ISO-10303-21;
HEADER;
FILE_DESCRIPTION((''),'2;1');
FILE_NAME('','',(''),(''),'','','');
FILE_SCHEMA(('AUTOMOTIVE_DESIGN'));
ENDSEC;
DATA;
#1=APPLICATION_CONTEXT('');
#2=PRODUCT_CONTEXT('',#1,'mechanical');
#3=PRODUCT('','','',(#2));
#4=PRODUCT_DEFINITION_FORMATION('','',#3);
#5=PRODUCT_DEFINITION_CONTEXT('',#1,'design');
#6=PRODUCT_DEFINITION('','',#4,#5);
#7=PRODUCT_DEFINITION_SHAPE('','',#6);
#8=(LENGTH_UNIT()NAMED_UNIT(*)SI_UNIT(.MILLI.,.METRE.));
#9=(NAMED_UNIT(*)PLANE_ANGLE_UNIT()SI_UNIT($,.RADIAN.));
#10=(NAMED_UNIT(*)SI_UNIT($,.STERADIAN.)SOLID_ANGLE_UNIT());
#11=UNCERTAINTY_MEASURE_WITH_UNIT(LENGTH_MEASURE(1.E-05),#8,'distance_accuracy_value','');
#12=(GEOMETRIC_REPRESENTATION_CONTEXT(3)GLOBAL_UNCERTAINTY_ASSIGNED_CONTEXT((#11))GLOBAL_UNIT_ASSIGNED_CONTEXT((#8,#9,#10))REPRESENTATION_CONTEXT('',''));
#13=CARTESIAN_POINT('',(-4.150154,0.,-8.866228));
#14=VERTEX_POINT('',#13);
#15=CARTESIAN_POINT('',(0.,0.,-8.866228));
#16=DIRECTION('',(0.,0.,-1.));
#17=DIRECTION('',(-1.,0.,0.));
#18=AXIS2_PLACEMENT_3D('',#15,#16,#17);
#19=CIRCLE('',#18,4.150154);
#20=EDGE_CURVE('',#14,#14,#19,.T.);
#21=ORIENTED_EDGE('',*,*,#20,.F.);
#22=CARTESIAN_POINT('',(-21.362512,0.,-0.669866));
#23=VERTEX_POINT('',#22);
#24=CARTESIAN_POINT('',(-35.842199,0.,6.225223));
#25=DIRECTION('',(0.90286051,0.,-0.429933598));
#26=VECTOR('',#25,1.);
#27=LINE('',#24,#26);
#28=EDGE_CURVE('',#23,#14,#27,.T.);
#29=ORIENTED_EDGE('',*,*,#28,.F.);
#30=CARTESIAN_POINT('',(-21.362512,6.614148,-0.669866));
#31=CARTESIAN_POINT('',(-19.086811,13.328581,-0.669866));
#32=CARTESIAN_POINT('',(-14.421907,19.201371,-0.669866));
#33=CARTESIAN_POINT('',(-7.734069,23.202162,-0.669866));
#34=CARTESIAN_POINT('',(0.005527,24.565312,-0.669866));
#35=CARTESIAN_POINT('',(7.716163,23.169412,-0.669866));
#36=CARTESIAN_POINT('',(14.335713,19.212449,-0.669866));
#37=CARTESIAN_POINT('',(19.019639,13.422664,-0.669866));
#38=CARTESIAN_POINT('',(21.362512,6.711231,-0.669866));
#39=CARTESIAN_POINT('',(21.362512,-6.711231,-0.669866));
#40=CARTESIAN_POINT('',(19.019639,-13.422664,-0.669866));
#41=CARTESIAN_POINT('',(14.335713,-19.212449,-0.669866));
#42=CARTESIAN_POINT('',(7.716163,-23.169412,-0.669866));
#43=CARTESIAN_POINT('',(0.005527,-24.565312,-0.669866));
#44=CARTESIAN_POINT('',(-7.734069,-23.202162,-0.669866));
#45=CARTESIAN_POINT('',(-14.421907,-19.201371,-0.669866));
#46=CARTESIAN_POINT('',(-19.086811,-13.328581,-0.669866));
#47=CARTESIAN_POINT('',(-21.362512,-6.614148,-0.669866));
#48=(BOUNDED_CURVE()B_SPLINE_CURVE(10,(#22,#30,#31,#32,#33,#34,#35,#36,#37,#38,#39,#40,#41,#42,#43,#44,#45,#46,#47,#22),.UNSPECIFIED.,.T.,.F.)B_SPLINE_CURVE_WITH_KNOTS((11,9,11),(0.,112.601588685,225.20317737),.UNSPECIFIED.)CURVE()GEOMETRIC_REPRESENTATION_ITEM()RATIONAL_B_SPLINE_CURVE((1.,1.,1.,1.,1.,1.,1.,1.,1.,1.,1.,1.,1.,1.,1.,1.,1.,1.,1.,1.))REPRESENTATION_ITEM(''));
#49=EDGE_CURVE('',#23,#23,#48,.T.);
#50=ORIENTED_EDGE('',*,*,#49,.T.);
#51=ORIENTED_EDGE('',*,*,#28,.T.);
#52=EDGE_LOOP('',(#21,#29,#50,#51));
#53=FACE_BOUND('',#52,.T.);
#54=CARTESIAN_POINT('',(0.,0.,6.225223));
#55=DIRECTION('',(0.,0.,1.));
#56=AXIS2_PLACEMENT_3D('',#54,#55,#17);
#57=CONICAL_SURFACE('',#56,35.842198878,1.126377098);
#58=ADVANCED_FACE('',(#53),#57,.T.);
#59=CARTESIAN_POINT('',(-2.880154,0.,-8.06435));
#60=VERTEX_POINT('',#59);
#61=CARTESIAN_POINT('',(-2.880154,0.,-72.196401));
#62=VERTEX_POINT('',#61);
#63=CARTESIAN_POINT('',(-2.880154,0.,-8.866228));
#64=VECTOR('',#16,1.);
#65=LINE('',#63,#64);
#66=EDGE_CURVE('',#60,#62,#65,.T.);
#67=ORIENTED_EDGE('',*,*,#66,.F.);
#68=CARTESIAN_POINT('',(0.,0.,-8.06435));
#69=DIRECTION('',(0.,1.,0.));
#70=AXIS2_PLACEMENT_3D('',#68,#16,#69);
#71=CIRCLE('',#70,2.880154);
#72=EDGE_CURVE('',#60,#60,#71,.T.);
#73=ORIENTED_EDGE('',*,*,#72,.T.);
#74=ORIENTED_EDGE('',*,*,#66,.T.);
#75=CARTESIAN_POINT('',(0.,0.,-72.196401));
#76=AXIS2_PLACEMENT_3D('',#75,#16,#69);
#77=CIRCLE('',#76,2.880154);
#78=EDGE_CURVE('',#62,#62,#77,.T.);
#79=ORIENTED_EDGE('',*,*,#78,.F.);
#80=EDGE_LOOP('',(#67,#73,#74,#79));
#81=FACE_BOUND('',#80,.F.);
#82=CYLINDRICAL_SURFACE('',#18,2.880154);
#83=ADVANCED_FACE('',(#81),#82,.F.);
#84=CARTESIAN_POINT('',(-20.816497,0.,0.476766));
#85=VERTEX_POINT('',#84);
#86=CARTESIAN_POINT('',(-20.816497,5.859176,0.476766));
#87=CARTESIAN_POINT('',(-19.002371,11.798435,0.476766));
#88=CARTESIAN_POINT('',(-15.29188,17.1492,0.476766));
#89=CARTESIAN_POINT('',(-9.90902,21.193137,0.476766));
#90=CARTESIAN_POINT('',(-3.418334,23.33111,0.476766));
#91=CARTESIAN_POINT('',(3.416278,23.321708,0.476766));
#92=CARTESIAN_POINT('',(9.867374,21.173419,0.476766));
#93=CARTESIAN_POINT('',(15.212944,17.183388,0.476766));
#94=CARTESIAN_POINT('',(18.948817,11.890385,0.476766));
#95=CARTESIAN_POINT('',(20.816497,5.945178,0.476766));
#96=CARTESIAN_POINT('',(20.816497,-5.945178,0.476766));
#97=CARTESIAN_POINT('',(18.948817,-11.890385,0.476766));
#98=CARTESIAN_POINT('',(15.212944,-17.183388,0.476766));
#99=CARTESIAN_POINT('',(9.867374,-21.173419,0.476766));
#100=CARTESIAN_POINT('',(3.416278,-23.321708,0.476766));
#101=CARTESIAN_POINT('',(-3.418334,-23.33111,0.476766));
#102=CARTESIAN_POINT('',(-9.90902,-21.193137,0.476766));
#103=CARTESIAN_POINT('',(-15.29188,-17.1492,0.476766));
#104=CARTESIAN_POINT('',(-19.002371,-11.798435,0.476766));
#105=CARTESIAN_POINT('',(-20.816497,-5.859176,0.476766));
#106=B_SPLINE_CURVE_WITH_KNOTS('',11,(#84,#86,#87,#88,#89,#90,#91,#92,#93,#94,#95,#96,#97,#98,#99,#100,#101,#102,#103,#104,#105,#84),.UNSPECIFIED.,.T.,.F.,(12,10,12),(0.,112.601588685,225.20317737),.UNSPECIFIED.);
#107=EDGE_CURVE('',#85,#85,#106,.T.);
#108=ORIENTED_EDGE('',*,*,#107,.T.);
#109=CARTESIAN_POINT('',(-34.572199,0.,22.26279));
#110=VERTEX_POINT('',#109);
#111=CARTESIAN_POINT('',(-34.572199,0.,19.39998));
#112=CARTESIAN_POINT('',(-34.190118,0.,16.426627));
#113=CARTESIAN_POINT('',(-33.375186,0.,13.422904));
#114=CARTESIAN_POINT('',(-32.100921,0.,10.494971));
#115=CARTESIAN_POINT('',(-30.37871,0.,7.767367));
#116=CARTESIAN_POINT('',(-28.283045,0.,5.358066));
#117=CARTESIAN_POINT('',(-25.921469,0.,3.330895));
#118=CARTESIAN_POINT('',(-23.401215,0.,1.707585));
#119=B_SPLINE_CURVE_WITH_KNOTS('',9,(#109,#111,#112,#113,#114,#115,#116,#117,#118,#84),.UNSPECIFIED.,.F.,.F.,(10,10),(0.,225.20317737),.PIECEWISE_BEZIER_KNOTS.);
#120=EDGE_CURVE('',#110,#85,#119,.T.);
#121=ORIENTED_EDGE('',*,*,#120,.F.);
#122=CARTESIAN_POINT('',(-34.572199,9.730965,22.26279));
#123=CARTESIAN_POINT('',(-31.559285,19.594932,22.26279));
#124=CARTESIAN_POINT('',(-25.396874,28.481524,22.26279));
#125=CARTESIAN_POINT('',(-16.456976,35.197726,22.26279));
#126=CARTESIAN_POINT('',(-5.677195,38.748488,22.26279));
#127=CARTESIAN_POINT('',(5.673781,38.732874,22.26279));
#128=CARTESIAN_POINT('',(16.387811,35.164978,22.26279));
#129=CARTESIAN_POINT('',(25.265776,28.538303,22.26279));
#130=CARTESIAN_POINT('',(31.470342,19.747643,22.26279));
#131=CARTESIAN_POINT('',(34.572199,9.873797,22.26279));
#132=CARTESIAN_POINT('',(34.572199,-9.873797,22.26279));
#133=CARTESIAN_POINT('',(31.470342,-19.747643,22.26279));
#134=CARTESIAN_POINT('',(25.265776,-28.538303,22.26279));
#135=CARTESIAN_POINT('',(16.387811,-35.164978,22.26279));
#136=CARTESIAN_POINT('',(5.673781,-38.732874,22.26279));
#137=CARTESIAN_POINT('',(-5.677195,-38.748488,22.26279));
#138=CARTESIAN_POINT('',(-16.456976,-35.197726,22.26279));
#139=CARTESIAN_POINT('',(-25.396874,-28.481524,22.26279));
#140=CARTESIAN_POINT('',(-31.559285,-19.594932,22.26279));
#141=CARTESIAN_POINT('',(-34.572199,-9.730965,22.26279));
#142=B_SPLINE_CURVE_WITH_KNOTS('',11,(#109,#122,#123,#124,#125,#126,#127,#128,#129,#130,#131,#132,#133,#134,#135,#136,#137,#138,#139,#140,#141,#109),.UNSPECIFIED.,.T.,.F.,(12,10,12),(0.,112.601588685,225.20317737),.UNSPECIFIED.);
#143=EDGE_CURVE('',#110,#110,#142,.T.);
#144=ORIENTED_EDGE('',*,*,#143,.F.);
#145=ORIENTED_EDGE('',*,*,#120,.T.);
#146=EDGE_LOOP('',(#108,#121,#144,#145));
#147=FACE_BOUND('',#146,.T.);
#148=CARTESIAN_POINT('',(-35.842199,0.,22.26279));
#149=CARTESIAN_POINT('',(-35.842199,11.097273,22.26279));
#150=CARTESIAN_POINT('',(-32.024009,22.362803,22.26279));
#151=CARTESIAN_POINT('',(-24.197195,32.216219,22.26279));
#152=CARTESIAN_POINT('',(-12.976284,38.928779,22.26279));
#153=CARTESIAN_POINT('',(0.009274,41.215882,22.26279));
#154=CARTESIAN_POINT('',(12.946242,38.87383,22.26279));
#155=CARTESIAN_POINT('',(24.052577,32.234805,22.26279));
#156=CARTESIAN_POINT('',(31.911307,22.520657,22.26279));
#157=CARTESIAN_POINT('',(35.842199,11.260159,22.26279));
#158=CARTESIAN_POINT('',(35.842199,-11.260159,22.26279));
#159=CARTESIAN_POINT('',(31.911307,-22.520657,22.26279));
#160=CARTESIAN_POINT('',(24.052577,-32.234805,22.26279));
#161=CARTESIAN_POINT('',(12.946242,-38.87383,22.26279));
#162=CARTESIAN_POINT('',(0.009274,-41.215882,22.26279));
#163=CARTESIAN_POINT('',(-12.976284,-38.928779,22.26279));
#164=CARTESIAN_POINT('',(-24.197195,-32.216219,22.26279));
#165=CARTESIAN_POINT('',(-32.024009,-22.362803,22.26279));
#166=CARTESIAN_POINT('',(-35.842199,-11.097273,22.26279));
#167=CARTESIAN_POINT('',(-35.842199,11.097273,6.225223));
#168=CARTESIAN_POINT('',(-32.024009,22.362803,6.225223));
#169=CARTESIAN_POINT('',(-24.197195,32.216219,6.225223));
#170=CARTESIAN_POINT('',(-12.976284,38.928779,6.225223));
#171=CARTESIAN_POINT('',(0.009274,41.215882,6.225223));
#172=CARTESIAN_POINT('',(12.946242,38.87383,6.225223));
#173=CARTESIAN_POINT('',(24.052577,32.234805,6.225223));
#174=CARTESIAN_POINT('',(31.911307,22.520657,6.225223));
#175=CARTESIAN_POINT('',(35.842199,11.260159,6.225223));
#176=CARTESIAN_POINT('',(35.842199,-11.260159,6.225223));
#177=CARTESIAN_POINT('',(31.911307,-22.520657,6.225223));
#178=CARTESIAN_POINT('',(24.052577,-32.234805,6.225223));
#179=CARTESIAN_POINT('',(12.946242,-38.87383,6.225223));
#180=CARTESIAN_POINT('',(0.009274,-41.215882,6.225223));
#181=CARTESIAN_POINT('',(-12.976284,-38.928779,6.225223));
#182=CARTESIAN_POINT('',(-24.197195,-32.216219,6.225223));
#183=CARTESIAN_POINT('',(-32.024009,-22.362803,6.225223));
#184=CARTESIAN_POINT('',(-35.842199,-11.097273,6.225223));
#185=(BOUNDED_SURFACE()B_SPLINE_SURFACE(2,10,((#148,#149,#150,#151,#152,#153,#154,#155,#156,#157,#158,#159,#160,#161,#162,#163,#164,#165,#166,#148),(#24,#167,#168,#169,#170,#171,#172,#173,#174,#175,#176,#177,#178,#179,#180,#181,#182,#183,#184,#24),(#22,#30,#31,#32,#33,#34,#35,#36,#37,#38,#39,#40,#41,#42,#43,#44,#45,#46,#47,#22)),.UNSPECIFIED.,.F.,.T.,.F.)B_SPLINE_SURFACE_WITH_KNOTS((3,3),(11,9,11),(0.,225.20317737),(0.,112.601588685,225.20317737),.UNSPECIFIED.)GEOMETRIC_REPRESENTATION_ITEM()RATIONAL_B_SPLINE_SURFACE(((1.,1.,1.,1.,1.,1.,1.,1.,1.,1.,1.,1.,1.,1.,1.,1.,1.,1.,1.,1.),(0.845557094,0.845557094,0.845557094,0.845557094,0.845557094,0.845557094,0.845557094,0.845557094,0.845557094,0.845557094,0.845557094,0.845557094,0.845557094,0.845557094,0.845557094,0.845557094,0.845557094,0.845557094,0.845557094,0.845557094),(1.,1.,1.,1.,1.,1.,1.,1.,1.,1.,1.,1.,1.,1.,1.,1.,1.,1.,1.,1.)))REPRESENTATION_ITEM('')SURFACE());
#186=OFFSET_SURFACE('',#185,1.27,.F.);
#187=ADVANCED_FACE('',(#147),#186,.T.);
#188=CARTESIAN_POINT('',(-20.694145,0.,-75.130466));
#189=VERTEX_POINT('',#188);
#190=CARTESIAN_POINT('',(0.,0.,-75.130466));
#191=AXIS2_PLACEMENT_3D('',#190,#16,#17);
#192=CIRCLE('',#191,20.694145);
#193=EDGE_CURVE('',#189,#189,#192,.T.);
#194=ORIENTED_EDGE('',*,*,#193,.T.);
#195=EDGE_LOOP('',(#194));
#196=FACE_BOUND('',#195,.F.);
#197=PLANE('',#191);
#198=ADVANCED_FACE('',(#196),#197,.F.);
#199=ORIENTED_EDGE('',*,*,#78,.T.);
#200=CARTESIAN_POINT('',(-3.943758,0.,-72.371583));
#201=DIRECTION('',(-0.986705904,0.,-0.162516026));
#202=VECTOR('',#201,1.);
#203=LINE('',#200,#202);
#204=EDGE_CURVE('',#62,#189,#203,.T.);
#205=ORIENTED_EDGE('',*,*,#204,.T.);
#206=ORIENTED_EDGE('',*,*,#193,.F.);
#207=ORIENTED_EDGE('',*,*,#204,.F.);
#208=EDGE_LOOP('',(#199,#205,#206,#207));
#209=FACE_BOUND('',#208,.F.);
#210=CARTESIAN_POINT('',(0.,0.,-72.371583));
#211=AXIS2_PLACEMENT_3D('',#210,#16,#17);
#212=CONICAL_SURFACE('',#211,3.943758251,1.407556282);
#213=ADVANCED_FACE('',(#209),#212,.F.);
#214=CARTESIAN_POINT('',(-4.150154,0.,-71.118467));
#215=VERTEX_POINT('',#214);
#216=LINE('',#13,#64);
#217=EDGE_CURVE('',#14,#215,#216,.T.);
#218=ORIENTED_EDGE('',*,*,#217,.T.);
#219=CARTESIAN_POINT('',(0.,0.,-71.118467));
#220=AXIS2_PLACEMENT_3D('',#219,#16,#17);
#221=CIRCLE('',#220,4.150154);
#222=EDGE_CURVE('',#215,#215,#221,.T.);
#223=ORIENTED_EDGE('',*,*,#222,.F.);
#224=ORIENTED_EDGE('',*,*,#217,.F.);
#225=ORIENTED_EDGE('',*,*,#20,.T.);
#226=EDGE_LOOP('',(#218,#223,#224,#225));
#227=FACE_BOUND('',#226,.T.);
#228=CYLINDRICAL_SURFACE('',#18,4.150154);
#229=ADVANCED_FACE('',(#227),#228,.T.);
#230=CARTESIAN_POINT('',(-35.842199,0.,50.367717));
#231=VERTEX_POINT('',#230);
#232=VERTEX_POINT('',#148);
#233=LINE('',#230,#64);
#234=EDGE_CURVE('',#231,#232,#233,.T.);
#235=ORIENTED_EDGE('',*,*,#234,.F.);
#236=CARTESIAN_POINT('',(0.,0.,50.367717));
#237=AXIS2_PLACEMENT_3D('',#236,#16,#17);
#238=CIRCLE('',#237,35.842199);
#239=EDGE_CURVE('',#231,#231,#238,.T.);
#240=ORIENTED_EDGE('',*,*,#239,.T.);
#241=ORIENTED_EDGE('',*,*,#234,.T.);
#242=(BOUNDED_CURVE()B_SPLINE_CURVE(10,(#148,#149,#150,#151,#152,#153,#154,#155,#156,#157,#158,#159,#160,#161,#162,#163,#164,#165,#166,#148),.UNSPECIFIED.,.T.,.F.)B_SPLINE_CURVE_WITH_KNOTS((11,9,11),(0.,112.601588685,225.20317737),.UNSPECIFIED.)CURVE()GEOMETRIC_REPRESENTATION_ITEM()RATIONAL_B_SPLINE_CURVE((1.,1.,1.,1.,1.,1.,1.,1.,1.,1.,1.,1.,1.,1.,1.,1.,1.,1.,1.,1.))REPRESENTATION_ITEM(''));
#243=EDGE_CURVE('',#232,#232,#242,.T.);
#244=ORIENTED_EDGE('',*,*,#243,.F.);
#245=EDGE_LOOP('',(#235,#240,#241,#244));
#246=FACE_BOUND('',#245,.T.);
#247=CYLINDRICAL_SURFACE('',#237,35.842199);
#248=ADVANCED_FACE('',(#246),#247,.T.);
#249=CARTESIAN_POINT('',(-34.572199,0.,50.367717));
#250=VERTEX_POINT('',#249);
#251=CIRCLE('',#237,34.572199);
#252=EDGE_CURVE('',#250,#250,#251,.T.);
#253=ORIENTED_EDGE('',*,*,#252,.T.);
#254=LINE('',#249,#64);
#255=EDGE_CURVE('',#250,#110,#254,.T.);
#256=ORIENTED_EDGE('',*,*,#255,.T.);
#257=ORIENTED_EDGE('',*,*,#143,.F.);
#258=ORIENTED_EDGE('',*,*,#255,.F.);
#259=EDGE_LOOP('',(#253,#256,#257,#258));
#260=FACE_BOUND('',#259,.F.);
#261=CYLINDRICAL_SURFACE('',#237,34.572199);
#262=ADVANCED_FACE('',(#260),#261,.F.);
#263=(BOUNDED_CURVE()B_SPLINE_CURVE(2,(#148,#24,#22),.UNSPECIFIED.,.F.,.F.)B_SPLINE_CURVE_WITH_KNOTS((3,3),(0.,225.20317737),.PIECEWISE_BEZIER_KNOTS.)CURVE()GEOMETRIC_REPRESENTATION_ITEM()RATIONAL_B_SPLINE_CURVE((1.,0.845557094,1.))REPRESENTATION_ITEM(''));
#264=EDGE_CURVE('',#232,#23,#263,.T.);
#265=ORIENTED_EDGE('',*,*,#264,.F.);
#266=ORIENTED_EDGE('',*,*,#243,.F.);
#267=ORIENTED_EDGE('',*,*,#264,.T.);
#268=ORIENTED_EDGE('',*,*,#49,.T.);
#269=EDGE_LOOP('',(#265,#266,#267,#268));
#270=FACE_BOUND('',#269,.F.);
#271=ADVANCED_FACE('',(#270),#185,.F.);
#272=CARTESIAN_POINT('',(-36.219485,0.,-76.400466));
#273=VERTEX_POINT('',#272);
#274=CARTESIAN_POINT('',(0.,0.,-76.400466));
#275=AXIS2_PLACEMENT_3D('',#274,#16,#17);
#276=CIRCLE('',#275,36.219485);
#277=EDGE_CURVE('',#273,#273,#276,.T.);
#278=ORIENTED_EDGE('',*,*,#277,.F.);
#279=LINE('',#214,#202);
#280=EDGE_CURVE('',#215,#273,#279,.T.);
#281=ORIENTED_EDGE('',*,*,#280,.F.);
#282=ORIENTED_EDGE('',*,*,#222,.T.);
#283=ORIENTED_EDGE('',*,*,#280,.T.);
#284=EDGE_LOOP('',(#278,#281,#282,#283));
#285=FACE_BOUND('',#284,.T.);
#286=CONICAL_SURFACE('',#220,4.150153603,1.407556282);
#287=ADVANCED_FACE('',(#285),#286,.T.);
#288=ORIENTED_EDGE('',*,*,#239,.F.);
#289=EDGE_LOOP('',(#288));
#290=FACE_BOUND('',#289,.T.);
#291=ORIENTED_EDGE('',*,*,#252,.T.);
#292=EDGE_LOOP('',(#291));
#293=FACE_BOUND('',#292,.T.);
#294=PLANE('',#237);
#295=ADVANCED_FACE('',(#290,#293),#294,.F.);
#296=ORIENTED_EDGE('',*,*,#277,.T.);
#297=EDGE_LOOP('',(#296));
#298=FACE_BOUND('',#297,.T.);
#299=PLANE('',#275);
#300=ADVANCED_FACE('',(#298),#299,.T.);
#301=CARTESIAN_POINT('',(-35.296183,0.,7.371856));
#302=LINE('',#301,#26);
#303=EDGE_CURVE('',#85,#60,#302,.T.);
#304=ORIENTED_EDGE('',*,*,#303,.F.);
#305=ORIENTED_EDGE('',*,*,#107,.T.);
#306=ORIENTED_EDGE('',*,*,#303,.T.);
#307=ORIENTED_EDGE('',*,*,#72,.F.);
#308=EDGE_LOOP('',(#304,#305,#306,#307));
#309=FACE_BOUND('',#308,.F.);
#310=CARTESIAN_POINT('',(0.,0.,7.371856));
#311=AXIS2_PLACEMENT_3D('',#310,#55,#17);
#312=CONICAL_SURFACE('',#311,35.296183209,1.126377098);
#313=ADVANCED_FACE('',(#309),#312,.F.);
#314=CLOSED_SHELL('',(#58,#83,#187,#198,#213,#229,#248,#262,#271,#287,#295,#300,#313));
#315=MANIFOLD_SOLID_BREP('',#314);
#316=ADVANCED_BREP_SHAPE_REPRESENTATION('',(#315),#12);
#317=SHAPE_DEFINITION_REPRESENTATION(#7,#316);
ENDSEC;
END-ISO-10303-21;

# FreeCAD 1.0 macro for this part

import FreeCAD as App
import Part
import Sketcher
from FreeCAD import Vector
Q = App.Units.Quantity


def edges_at(feature, points):
    """Names of the edges that pass closest to the given points."""
    edges = feature.Shape.Edges
    near = lambda p: min(range(len(edges)), key=lambda i: edges[i].distToShape(Part.Vertex(*p))[0])
    return sorted({f"Edge{near(p) + 1}" for p in points})


def faces_at(feature, points):
    """Names of the faces that lie closest to the given points."""
    faces = feature.Shape.Faces
    near = lambda p: min(range(len(faces)), key=lambda i: faces[i].distToShape(Part.Vertex(*p))[0])
    return sorted({f"Face{near(p) + 1}" for p in points})


def add_polygon(sketch, points):
    """Adds a closed chain of lines whose ends are joined by coincident constraints."""
    first, n = sketch.GeometryCount, len(points)
    for a, b in zip(points, points[1:] + points[:1]):
        sketch.addGeometry(Part.LineSegment(App.Vector(*a, 0), App.Vector(*b, 0)), False)
    for i in range(n):
        sketch.addConstraint(Sketcher.Constraint("Coincident", first + i, 2, first + (i + 1) % n, 1))

doc = App.newDocument("Part")
body = doc.addObject("PartDesign::Body", "Body")

# Sketch on XZ plane
sketch1 = body.newObject("Sketcher::SketchObject", "Sketch")
sketch1.AttachmentSupport = (doc.getObject("XZ_Plane"), [""])
sketch1.MapMode = "FlatFace"
add_polygon(sketch1, [(-36, -76), (0, -76), (0, 50), (-36, 50), (-36, 6), (-4, -9), (-4, -71)])  # lines 0-6
sketch1.addConstraint([
    Sketcher.Constraint("Horizontal", 0),
    Sketcher.Constraint("Vertical", 1),
    Sketcher.Constraint("Horizontal", 2),
    Sketcher.Constraint("Vertical", 3),
    Sketcher.Constraint("Vertical", 5),
    Sketcher.Constraint("PointOnObject", 0, 2, -2),
    Sketcher.Constraint("DistanceX", 2, 2, 2, 1, Q("35.842199 mm")),
    Sketcher.Constraint("DistanceY", 5, 2, 5, 1, Q("62.252238 mm")),
    Sketcher.Constraint("DistanceY", 0, 2, 5, 2, Q("5.282 mm")),
    Sketcher.Constraint("Distance", 6, Q("32.501408 mm")),
    Sketcher.Constraint("DistanceX", 0, 1, 0, 2, Q("36.219485 mm")),
    Sketcher.Constraint("DistanceY", 1, 1, 1, 2, Q("126.768183 mm")),
    Sketcher.Constraint("DistanceY", 3, 2, 3, 1, Q("44.142494 mm")),
    Sketcher.Constraint("DistanceY", 4, 2, -1, 1, Q("8.866228 mm")),
])
revolution = body.newObject("PartDesign::Revolution", "Revolution")
revolution.Profile = sketch1
revolution.ReferenceAxis = (sketch1, ["V_Axis"])
revolution.Angle = 360
doc.recompute()

fillet = body.newObject("PartDesign::Fillet", "Fillet")
fillet.Base = (revolution, edges_at(revolution, [(35.842, 0, 6.225)]))
fillet.Radius = Q("1 in")
doc.recompute()

thickness = body.newObject("PartDesign::Thickness", "Thickness")
thickness.Base = (fillet, faces_at(fillet, [(0, 0, 50.368)]))
thickness.Value = Q("0.05 in")
thickness.Reversed = True
thickness.Join = "Intersection"

doc.recompute()
